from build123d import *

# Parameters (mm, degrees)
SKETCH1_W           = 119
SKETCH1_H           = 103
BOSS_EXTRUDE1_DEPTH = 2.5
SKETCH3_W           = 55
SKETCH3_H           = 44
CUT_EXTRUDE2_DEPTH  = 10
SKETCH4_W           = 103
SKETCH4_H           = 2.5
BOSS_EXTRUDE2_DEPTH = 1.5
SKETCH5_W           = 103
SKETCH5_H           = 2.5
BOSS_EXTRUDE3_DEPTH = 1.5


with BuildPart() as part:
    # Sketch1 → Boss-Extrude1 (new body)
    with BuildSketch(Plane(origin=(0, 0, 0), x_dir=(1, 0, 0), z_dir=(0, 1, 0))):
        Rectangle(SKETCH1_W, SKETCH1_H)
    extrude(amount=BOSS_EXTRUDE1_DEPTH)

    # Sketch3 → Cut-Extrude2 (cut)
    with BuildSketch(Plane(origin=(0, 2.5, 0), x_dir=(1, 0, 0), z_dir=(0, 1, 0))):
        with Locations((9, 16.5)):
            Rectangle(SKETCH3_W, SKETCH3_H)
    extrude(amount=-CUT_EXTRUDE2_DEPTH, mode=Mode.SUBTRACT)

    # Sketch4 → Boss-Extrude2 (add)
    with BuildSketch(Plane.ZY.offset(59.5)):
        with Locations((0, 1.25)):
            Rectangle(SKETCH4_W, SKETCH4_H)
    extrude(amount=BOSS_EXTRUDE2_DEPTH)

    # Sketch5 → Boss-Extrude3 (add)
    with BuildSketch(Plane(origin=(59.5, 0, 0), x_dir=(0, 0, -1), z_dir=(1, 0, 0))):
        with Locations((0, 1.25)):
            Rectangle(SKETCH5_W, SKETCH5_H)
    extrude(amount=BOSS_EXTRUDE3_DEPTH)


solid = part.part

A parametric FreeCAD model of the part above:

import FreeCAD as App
import Part
import Sketcher
from FreeCAD import Vector
Q = App.Units.Quantity


def add_polygon(sketch, points):
    """Adds a closed chain of lines whose ends are joined by coincident constraints."""
    first, n = sketch.GeometryCount, len(points)
    for a, b in zip(points, points[1:] + points[:1]):
        sketch.addGeometry(Part.LineSegment(App.Vector(*a, 0), App.Vector(*b, 0)), False)
    for i in range(n):
        sketch.addConstraint(Sketcher.Constraint("Coincident", first + i, 2, first + (i + 1) % n, 1))

doc = App.newDocument("Part")
body = doc.addObject("PartDesign::Body", "Body")

# Sketch on XZ plane
sketch1 = doc.addObject("Sketcher::SketchObject", "Sketch")
body.addObject(sketch1)
sketch1.AttachmentSupport = (doc.XZ_Plane, [""])
sketch1.MapMode = "FlatFace"
add_polygon(sketch1, [(-60, -52), (-60, 52), (60, 52), (60, -52)])  # lines 0-3
sketch1.addConstraint(Sketcher.Constraint("Vertical", 0))
sketch1.addConstraint(Sketcher.Constraint("Horizontal", 1))
sketch1.addConstraint(Sketcher.Constraint("Vertical", 2))
sketch1.addConstraint(Sketcher.Constraint("Horizontal", 3))
sketch1.addConstraint(Sketcher.Constraint("Symmetric", 0, 2, 2, 2, -1, 1))
sketch1.addConstraint(Sketcher.Constraint("DistanceX", 1, 1, 1, 2, Q("119 mm")))
sketch1.addConstraint(Sketcher.Constraint("DistanceY", 0, 1, 0, 2, Q("103 mm")))
pad1 = doc.addObject("PartDesign::Pad", "Pad")
body.addObject(pad1)
pad1.Profile = sketch1
pad1.Length = 2.5
pad1.Reversed = True

# Sketch on XZ plane
sketch2 = doc.addObject("Sketcher::SketchObject", "Sketch001")
body.addObject(sketch2)
sketch2.AttachmentSupport = (doc.XZ_Plane, [""])
sketch2.MapMode = "FlatFace"
sketch2.AttachmentOffset = App.Placement(Vector(0, 0, -2.5), App.Rotation())
add_polygon(sketch2, [(-18, -38), (-18, 6), (36, 6), (36, -38)])  # lines 0-3
sketch2.addConstraint(Sketcher.Constraint("Vertical", 0))
sketch2.addConstraint(Sketcher.Constraint("Horizontal", 1))
sketch2.addConstraint(Sketcher.Constraint("Vertical", 2))
sketch2.addConstraint(Sketcher.Constraint("Horizontal", 3))
sketch2.addConstraint(Sketcher.Constraint("DistanceX", 1, 1, 1, 2, Q("55 mm")))
sketch2.addConstraint(Sketcher.Constraint("DistanceY", 0, 1, 0, 2, Q("44 mm")))
sketch2.addConstraint(Sketcher.Constraint("DistanceX", 0, 2, -1, 1, Q("18.5 mm")))
sketch2.addConstraint(Sketcher.Constraint("DistanceY", -1, 1, 0, 2, Q("5.5 mm")))
pocket1 = doc.addObject("PartDesign::Pocket", "Pocket")
body.addObject(pocket1)
pocket1.Profile = sketch2
pocket1.Length = 10
pocket1.Reversed = True

# Sketch on YZ plane
sketch3 = doc.addObject("Sketcher::SketchObject", "Sketch002")
body.addObject(sketch3)
sketch3.AttachmentSupport = (doc.YZ_Plane, [""])
sketch3.MapMode = "FlatFace"
sketch3.AttachmentOffset = App.Placement(Vector(0, 0, -59.5), App.Rotation())
add_polygon(sketch3, [(2.5, -51.5), (0, -51.5), (0, 51.5), (2.5, 51.5)])  # lines 0-3
sketch3.addConstraint(Sketcher.Constraint("Horizontal", 0))
sketch3.addConstraint(Sketcher.Constraint("Vertical", 1))
sketch3.addConstraint(Sketcher.Constraint("Horizontal", 2))
sketch3.addConstraint(Sketcher.Constraint("Vertical", 3))
sketch3.addConstraint(Sketcher.Constraint("Symmetric", 0, 2, 1, 2, -1, 1))
sketch3.addConstraint(Sketcher.Constraint("DistanceY", 1, 1, 1, 2, Q("103 mm")))
sketch3.addConstraint(Sketcher.Constraint("DistanceX", 0, 2, 0, 1, Q("2.5 mm")))
pad2 = doc.addObject("PartDesign::Pad", "Pad001")
body.addObject(pad2)
pad2.Profile = sketch3
pad2.Length = 1.5
pad2.Reversed = True

# Sketch on YZ plane
sketch4 = doc.addObject("Sketcher::SketchObject", "Sketch003")
body.addObject(sketch4)
sketch4.AttachmentSupport = (doc.YZ_Plane, [""])
sketch4.MapMode = "FlatFace"
sketch4.AttachmentOffset = App.Placement(Vector(0, 0, 59.5), App.Rotation())
add_polygon(sketch4, [(2.5, 51.5), (0, 51.5), (0, -51.5), (2.5, -51.5)])  # lines 0-3
sketch4.addConstraint(Sketcher.Constraint("Horizontal", 0))
sketch4.addConstraint(Sketcher.Constraint("Vertical", 1))
sketch4.addConstraint(Sketcher.Constraint("Horizontal", 2))
sketch4.addConstraint(Sketcher.Constraint("Vertical", 3))
sketch4.addConstraint(Sketcher.Constraint("Symmetric", 0, 2, 1, 2, -1, 1))
sketch4.addConstraint(Sketcher.Constraint("DistanceY", 1, 2, 1, 1, Q("103 mm")))
sketch4.addConstraint(Sketcher.Constraint("DistanceX", 0, 2, 0, 1, Q("2.5 mm")))
pad3 = doc.addObject("PartDesign::Pad", "Pad002")
body.addObject(pad3)
pad3.Profile = sketch4
pad3.Length = 1.5

doc.recompute()
